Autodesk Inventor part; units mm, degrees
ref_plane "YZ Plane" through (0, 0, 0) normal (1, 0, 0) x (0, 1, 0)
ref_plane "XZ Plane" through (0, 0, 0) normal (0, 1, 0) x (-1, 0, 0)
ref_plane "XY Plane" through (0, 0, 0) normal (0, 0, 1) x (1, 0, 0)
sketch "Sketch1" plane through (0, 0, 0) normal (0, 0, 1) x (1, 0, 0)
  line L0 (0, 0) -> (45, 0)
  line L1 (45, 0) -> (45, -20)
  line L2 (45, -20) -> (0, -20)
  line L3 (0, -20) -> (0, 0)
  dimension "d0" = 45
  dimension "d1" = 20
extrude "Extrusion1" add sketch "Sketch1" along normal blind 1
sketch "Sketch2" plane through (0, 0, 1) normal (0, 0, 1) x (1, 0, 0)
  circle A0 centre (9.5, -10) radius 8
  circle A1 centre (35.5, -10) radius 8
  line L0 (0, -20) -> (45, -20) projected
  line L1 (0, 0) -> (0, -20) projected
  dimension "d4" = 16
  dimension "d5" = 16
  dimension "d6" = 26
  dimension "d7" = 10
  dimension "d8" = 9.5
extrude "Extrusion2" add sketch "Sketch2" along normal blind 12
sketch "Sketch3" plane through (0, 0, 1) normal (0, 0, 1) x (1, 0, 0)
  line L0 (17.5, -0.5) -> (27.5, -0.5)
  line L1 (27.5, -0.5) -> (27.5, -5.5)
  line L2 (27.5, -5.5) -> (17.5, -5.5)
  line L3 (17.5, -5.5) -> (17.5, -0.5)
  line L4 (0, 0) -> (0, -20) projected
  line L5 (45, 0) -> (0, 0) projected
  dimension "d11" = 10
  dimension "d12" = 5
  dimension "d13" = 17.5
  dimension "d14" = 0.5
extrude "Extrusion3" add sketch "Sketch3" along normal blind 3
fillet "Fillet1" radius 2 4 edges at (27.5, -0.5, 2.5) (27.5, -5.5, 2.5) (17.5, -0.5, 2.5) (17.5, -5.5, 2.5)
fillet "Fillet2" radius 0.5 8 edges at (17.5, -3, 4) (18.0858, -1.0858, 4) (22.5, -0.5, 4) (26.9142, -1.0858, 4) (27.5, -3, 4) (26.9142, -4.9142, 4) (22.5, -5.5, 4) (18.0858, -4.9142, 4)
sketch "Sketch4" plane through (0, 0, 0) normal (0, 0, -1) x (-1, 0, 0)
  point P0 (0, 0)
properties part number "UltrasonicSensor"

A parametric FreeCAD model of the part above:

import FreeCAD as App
import Part
import Sketcher
Q = App.Units.Quantity


def edges_at(feature, points):
    """Names of the edges that pass closest to the given points."""
    edges = feature.Shape.Edges
    near = lambda p: min(range(len(edges)), key=lambda i: edges[i].distToShape(Part.Vertex(*p))[0])
    return sorted({f"Edge{near(p) + 1}" for p in points})

doc = App.newDocument("Part")
body = doc.addObject("PartDesign::Body", "Body")

# Sketch on XY plane
sketch1 = body.newObject("Sketcher::SketchObject", "Sketch")
sketch1.AttachmentSupport = (doc.getObject("XY_Plane"), [""])
sketch1.MapMode = "FlatFace"
sketch1.addGeometry(Part.LineSegment(App.Vector(45, 0, 0), App.Vector(0, 0, 0)), False)
sketch1.addGeometry(Part.LineSegment(App.Vector(0, 0, 0), App.Vector(0, -20, 0)), False)
sketch1.addGeometry(Part.LineSegment(App.Vector(0, -20, 0), App.Vector(45, -20, 0)), False)
sketch1.addGeometry(Part.LineSegment(App.Vector(45, -20, 0), App.Vector(45, 0, 0)), False)
sketch1.addConstraint(Sketcher.Constraint("Coincident", 0, 2, 1, 1))
sketch1.addConstraint(Sketcher.Constraint("Coincident", 1, 2, 2, 1))
sketch1.addConstraint(Sketcher.Constraint("Coincident", 2, 2, 3, 1))
sketch1.addConstraint(Sketcher.Constraint("Coincident", 3, 2, 0, 1))
sketch1.addConstraint(Sketcher.Constraint("Horizontal", 0))
sketch1.addConstraint(Sketcher.Constraint("Vertical", 1))
sketch1.addConstraint(Sketcher.Constraint("Horizontal", 2))
sketch1.addConstraint(Sketcher.Constraint("Vertical", 3))
sketch1.addConstraint(Sketcher.Constraint("Coincident", 0, 2, -1, 1))
sketch1.addConstraint(Sketcher.Constraint("DistanceX", 0, 2, 0, 1, Q("45 mm")))
sketch1.addConstraint(Sketcher.Constraint("DistanceY", 1, 2, 1, 1, Q("20 mm")))
pad1 = body.newObject("PartDesign::Pad", "Pad")
pad1.Profile = sketch1
pad1.Length = 1

# Sketch on XY plane
sketch2 = body.newObject("Sketcher::SketchObject", "Sketch001")
sketch2.AttachmentSupport = (doc.getObject("XY_Plane"), [""])
sketch2.MapMode = "FlatFace"
sketch2.AttachmentOffset = App.Placement(App.Vector(0, 0, 1), App.Rotation())
sketch2.addGeometry(Part.Circle(App.Vector(9.5, -10, 0), App.Vector(0, 0, 1), 8), False)
sketch2.addGeometry(Part.Circle(App.Vector(35.5, -10, 0), App.Vector(0, 0, 1), 8), False)
sketch2.addConstraint(Sketcher.Constraint("Equal", 0, 1))
sketch2.addConstraint(Sketcher.Constraint("Horizontal", 0, 3, 1, 3))
sketch2.addConstraint(Sketcher.Constraint("Diameter", 0, Q("16 mm")))
sketch2.addConstraint(Sketcher.Constraint("DistanceY", 0, 3, -1, 1, Q("10 mm")))
sketch2.addConstraint(Sketcher.Constraint("DistanceX", 0, 3, 1, 3, Q("26 mm")))
sketch2.addConstraint(Sketcher.Constraint("DistanceX", -1, 1, 0, 3, Q("9.5 mm")))
pad2 = body.newObject("PartDesign::Pad", "Pad001")
pad2.Profile = sketch2
pad2.Length = 12

# Sketch on XY plane
sketch3 = body.newObject("Sketcher::SketchObject", "Sketch002")
sketch3.AttachmentSupport = (doc.getObject("XY_Plane"), [""])
sketch3.MapMode = "FlatFace"
sketch3.AttachmentOffset = App.Placement(App.Vector(0, 0, 1), App.Rotation())
sketch3.addGeometry(Part.LineSegment(App.Vector(27.5, -0.5, 0), App.Vector(17.5, -0.5, 0)), False)
sketch3.addGeometry(Part.LineSegment(App.Vector(17.5, -0.5, 0), App.Vector(17.5, -5.5, 0)), False)
sketch3.addGeometry(Part.LineSegment(App.Vector(17.5, -5.5, 0), App.Vector(27.5, -5.5, 0)), False)
sketch3.addGeometry(Part.LineSegment(App.Vector(27.5, -5.5, 0), App.Vector(27.5, -0.5, 0)), False)
sketch3.addConstraint(Sketcher.Constraint("Coincident", 0, 2, 1, 1))
sketch3.addConstraint(Sketcher.Constraint("Coincident", 1, 2, 2, 1))
sketch3.addConstraint(Sketcher.Constraint("Coincident", 2, 2, 3, 1))
sketch3.addConstraint(Sketcher.Constraint("Coincident", 3, 2, 0, 1))
sketch3.addConstraint(Sketcher.Constraint("Horizontal", 0))
sketch3.addConstraint(Sketcher.Constraint("Vertical", 1))
sketch3.addConstraint(Sketcher.Constraint("Horizontal", 2))
sketch3.addConstraint(Sketcher.Constraint("Vertical", 3))
sketch3.addConstraint(Sketcher.Constraint("DistanceX", 0, 2, 0, 1, Q("10 mm")))
sketch3.addConstraint(Sketcher.Constraint("DistanceY", 1, 2, 1, 1, Q("5 mm")))
sketch3.addConstraint(Sketcher.Constraint("DistanceX", -1, 1, 0, 2, Q("17.5 mm")))
sketch3.addConstraint(Sketcher.Constraint("DistanceY", 0, 2, -1, 1, Q("0.5 mm")))
pad3 = body.newObject("PartDesign::Pad", "Pad002")
pad3.Profile = sketch3
pad3.Length = 3
doc.recompute()

fillet = body.newObject("PartDesign::Fillet", "Fillet")
fillet.Base = (pad3, edges_at(pad3, [
    (27.5, -0.5, 2.5),
    (27.5, -5.5, 2.5),
    (17.5, -0.5, 2.5),
    (17.5, -5.5, 2.5),
]))
fillet.Radius = 2
doc.recompute()

fillet2 = body.newObject("PartDesign::Fillet", "Fillet001")
fillet2.Base = (fillet, edges_at(fillet, [
    (17.5, -3, 4),
    (18.086, -1.086, 4),
    (22.5, -0.5, 4),
    (26.914, -1.086, 4),
    (27.5, -3, 4),
    (26.914, -4.914, 4),
    (22.5, -5.5, 4),
    (18.086, -4.914, 4),
]))
fillet2.Radius = 0.5

doc.recompute()
